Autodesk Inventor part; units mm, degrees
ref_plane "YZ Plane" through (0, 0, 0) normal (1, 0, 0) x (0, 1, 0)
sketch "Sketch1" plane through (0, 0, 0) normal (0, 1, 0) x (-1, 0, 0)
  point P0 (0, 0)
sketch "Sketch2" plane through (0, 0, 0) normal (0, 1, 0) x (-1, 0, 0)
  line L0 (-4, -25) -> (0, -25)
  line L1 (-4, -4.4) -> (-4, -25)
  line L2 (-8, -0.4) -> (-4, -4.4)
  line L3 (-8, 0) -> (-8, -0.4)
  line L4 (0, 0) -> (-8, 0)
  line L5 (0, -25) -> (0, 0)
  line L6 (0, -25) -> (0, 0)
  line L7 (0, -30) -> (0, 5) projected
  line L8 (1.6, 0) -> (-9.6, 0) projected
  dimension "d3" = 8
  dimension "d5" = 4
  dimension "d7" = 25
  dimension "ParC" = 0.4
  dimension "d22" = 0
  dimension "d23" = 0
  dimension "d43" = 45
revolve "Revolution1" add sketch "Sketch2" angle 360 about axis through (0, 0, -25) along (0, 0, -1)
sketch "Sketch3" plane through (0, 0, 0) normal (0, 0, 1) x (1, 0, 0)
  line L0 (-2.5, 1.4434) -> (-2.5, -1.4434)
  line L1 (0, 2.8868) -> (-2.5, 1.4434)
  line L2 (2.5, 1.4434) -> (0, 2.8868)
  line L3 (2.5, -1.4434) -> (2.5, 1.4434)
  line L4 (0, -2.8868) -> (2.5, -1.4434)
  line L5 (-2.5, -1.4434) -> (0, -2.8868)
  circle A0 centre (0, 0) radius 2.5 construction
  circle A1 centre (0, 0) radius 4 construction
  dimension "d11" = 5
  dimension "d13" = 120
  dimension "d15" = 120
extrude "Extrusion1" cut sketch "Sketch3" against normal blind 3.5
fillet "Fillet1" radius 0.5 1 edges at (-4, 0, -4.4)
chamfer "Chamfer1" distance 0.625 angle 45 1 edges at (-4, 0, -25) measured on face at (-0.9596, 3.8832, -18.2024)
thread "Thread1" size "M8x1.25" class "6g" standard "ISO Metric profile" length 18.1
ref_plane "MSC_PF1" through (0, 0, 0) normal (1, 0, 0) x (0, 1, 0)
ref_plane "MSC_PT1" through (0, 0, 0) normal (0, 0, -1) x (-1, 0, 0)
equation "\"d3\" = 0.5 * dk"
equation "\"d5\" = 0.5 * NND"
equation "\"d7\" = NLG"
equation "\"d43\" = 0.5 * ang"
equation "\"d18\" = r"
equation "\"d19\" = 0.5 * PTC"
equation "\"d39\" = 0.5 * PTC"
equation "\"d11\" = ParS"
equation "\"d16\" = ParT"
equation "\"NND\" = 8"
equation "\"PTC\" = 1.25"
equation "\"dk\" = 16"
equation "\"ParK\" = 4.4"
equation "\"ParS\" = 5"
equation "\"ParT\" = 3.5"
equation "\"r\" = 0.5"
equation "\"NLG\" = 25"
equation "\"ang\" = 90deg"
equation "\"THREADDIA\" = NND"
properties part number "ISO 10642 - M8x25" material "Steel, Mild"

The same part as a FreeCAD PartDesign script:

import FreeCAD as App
import Part
import Sketcher
Q = App.Units.Quantity


def edges_at(feature, points):
    """Names of the edges that pass closest to the given points."""
    edges = feature.Shape.Edges
    near = lambda p: min(range(len(edges)), key=lambda i: edges[i].distToShape(Part.Vertex(*p))[0])
    return sorted({f"Edge{near(p) + 1}" for p in points})

doc = App.newDocument("Part")
body = doc.addObject("PartDesign::Body", "Body")

sketch1 = body.newObject("Sketcher::SketchObject", "Sketch")
sketch1.AttachmentSupport = (doc.getObject("XZ_Plane"), [""])
sketch1.MapMode = "FlatFace"
sketch1.addGeometry([
    Part.LineSegment(App.Vector(4, -4.4, 0), App.Vector(4, -25, 0)),
    Part.LineSegment(App.Vector(4, -25, 0), App.Vector(0, -25, 0)),
    Part.LineSegment(App.Vector(0, -25, 0), App.Vector(0, 0, 0)),
    Part.LineSegment(App.Vector(0, 0, 0), App.Vector(8, 0, 0)),
    Part.LineSegment(App.Vector(8, 0, 0), App.Vector(8, -0.4, 0)),
    Part.LineSegment(App.Vector(8, -0.4, 0), App.Vector(4, -4.4, 0)),
], False)
sketch1.addConstraint([
    Sketcher.Constraint("Coincident", 0, 2, 1, 1),
    Sketcher.Constraint("Coincident", 1, 2, 2, 1),
    Sketcher.Constraint("Coincident", 2, 2, 3, 1),
    Sketcher.Constraint("Coincident", 3, 2, 4, 1),
    Sketcher.Constraint("Coincident", 4, 2, 5, 1),
    Sketcher.Constraint("Coincident", 5, 2, 0, 1),
    Sketcher.Constraint("Vertical", 0),
    Sketcher.Constraint("Horizontal", 1),
    Sketcher.Constraint("Vertical", 2),
    Sketcher.Constraint("Horizontal", 3),
    Sketcher.Constraint("Vertical", 4),
    Sketcher.Constraint("Coincident", 2, 2, -1, 1),
    Sketcher.Constraint("DistanceX", 1, 2, 1, 1, 4.0),
    Sketcher.Constraint("DistanceX", 3, 1, 3, 2, 8.0),
    Sketcher.Constraint("DistanceY", 2, 1, 2, 2, 25.0),
    Sketcher.Constraint("DistanceY", 4, 2, 4, 1, 0.4),
    Sketcher.Constraint("DistanceY", 5, 2, 4, 2, 4.0),
])
revolution = body.newObject("PartDesign::Revolution", "Revolution")
revolution.Profile = sketch1
revolution.ReferenceAxis = (sketch1, ["V_Axis"])
revolution.Angle = 360

sketch2 = body.newObject("Sketcher::SketchObject", "Sketch001")
sketch2.AttachmentSupport = (doc.getObject("XY_Plane"), [""])
sketch2.MapMode = "FlatFace"
sketch2.addGeometry([
    Part.LineSegment(App.Vector(0, 2.8868, 0), App.Vector(-2.5, 1.4434, 0)),
    Part.LineSegment(App.Vector(-2.5, 1.4434, 0), App.Vector(-2.5, -1.4434, 0)),
    Part.LineSegment(App.Vector(-2.5, -1.4434, 0), App.Vector(0, -2.8868, 0)),
    Part.LineSegment(App.Vector(0, -2.8868, 0), App.Vector(2.5, -1.4434, 0)),
    Part.LineSegment(App.Vector(2.5, -1.4434, 0), App.Vector(2.5, 1.4434, 0)),
    Part.LineSegment(App.Vector(2.5, 1.4434, 0), App.Vector(0, 2.8868, 0)),
], False)
sketch2.addConstraint([
    Sketcher.Constraint("Coincident", 0, 2, 1, 1),
    Sketcher.Constraint("Coincident", 1, 2, 2, 1),
    Sketcher.Constraint("Coincident", 2, 2, 3, 1),
    Sketcher.Constraint("Coincident", 3, 2, 4, 1),
    Sketcher.Constraint("Coincident", 4, 2, 5, 1),
    Sketcher.Constraint("Coincident", 5, 2, 0, 1),
    Sketcher.Constraint("Vertical", 1),
    Sketcher.Constraint("Vertical", 4),
    Sketcher.Constraint("Symmetric", 0, 2, 3, 2, -1, 1),
    Sketcher.Constraint("Symmetric", 2, 2, 5, 2, -1, 1),
    Sketcher.Constraint("PointOnObject", 2, 2, -2),
    Sketcher.Constraint("Parallel", 2, 5),
    Sketcher.Constraint("Horizontal", 1, 2, 3, 2),
    Sketcher.Constraint("DistanceX", 1, 2, 3, 2, 5.0),
    Sketcher.Constraint("Angle", 0, Q("-149.9996 deg")),
    Sketcher.Constraint("DistanceY", 1, 2, 1, 1, 2.8868),
])
pocket1 = body.newObject("PartDesign::Pocket", "Pocket")
pocket1.Profile = sketch2
pocket1.Length = 3.5
doc.recompute()

fillet = body.newObject("PartDesign::Fillet", "Fillet")
fillet.Base = (pocket1, edges_at(pocket1, [(-4, 0, -4.4)]))
fillet.Radius = 0.5
doc.recompute()

chamfer = body.newObject("PartDesign::Chamfer", "Chamfer")
chamfer.Base = (fillet, edges_at(fillet, [(-4, 0, -25)]))
chamfer.Size = 0.625

doc.recompute()
